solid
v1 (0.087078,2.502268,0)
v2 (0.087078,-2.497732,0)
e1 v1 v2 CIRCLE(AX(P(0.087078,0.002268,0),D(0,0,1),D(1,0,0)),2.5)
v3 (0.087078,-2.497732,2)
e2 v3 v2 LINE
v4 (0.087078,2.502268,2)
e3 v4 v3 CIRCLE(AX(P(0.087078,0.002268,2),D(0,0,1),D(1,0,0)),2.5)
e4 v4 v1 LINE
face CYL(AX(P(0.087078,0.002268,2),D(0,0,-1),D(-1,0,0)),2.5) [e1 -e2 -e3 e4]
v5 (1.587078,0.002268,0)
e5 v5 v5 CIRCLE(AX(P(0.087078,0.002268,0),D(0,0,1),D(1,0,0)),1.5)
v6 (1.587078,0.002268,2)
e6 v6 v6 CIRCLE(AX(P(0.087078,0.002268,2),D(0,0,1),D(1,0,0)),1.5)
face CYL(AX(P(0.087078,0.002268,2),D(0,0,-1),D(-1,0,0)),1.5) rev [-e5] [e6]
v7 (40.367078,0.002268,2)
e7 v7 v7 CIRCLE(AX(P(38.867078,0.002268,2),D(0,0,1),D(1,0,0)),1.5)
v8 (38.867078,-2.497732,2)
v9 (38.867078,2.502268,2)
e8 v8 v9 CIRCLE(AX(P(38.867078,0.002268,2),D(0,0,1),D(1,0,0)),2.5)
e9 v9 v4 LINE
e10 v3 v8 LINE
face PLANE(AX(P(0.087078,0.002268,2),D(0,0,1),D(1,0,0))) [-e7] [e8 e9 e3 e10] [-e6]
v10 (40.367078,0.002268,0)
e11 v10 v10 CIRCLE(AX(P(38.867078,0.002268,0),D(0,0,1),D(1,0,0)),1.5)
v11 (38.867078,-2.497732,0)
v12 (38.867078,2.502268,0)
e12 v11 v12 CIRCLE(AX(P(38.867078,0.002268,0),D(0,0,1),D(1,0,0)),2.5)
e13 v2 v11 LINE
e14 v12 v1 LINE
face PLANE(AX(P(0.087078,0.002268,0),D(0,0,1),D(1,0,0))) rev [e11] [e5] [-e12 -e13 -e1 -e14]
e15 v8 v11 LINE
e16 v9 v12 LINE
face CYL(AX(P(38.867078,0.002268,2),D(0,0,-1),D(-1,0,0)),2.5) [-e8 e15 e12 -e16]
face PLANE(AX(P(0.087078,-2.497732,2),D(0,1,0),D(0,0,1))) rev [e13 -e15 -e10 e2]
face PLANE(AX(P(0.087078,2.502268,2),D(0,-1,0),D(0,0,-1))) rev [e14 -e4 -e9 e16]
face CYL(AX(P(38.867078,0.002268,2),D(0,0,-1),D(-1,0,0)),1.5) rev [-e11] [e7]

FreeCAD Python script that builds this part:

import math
import FreeCAD as App
import Part
import Sketcher

doc = App.newDocument("Part")
params = doc.addObject("Spreadsheet::Sheet", "Params")
for row, (alias, value) in enumerate([
    ("sketch1_diameter", "3 mm"),
    ("sketch1_radius", "2.5 mm"),
    ("sketch1_width", "38.78 mm"),
    ("pad1_length", "2 mm"),
], start=1):
    params.set(f"A{row}", alias)
    params.set(f"B{row}", "=" + value)
    params.setAlias(f"B{row}", alias)

body = doc.addObject("PartDesign::Body", "Body")

# Sketch on XY plane
sketch1 = body.newObject("Sketcher::SketchObject", "Sketch")
sketch1.AttachmentSupport = (doc.getObject("XY_Plane"), [""])
sketch1.MapMode = "FlatFace"
sketch1.addGeometry([
    Part.LineSegment(App.Vector(38.9, 2.5, 0), App.Vector(0.1, 2.5, 0)),  # 0
    Part.ArcOfCircle(Part.Circle(App.Vector(0.1, 0, 0), App.Vector(0, 0, 1), 2.5), math.radians(90), math.radians(270)),  # 1
    Part.LineSegment(App.Vector(0.1, -2.5, 0), App.Vector(38.9, -2.5, 0)),  # 2
    Part.ArcOfCircle(Part.Circle(App.Vector(38.9, 0, 0), App.Vector(0, 0, 1), 2.5), math.radians(-90), math.radians(90)),  # 3
    Part.Circle(App.Vector(38.9, 0, 0), App.Vector(0, 0, 1), 1.5),  # 4
    Part.Circle(App.Vector(0.1, 0, 0), App.Vector(0, 0, 1), 1.5),  # 5
], False)
sketch1.addConstraint([
    Sketcher.Constraint("Tangent", 0, 2, 1, 1),
    Sketcher.Constraint("Tangent", 1, 2, 2, 1),
    Sketcher.Constraint("Tangent", 2, 2, 3, 1),
    Sketcher.Constraint("Tangent", 3, 2, 0, 1),
    Sketcher.Constraint("Horizontal", 0),
    Sketcher.Constraint("Horizontal", 2),
    Sketcher.Constraint("Coincident", 4, 3, 3, 3),
    Sketcher.Constraint("Coincident", 5, 3, 1, 3),
    Sketcher.Constraint("Equal", 4, 5),
    Sketcher.Constraint("Diameter", 4, 3.0),
    Sketcher.Constraint("Radius", 1, 2.5),
    Sketcher.Constraint("DistanceX", 0, 2, 0, 1, 38.78),
    Sketcher.Constraint("DistanceX", -1, 1, 1, 3, 0.087078),
    Sketcher.Constraint("DistanceY", -1, 1, 1, 3, 0.002268),
])
sketch1.setExpression("Constraints[9]", "Params.sketch1_diameter")
sketch1.setExpression("Constraints[10]", "Params.sketch1_radius")
sketch1.setExpression("Constraints[11]", "Params.sketch1_width")
pad1 = body.newObject("PartDesign::Pad", "Pad")
pad1.Profile = sketch1
pad1.setExpression("Length", "Params.pad1_length")

doc.recompute()
